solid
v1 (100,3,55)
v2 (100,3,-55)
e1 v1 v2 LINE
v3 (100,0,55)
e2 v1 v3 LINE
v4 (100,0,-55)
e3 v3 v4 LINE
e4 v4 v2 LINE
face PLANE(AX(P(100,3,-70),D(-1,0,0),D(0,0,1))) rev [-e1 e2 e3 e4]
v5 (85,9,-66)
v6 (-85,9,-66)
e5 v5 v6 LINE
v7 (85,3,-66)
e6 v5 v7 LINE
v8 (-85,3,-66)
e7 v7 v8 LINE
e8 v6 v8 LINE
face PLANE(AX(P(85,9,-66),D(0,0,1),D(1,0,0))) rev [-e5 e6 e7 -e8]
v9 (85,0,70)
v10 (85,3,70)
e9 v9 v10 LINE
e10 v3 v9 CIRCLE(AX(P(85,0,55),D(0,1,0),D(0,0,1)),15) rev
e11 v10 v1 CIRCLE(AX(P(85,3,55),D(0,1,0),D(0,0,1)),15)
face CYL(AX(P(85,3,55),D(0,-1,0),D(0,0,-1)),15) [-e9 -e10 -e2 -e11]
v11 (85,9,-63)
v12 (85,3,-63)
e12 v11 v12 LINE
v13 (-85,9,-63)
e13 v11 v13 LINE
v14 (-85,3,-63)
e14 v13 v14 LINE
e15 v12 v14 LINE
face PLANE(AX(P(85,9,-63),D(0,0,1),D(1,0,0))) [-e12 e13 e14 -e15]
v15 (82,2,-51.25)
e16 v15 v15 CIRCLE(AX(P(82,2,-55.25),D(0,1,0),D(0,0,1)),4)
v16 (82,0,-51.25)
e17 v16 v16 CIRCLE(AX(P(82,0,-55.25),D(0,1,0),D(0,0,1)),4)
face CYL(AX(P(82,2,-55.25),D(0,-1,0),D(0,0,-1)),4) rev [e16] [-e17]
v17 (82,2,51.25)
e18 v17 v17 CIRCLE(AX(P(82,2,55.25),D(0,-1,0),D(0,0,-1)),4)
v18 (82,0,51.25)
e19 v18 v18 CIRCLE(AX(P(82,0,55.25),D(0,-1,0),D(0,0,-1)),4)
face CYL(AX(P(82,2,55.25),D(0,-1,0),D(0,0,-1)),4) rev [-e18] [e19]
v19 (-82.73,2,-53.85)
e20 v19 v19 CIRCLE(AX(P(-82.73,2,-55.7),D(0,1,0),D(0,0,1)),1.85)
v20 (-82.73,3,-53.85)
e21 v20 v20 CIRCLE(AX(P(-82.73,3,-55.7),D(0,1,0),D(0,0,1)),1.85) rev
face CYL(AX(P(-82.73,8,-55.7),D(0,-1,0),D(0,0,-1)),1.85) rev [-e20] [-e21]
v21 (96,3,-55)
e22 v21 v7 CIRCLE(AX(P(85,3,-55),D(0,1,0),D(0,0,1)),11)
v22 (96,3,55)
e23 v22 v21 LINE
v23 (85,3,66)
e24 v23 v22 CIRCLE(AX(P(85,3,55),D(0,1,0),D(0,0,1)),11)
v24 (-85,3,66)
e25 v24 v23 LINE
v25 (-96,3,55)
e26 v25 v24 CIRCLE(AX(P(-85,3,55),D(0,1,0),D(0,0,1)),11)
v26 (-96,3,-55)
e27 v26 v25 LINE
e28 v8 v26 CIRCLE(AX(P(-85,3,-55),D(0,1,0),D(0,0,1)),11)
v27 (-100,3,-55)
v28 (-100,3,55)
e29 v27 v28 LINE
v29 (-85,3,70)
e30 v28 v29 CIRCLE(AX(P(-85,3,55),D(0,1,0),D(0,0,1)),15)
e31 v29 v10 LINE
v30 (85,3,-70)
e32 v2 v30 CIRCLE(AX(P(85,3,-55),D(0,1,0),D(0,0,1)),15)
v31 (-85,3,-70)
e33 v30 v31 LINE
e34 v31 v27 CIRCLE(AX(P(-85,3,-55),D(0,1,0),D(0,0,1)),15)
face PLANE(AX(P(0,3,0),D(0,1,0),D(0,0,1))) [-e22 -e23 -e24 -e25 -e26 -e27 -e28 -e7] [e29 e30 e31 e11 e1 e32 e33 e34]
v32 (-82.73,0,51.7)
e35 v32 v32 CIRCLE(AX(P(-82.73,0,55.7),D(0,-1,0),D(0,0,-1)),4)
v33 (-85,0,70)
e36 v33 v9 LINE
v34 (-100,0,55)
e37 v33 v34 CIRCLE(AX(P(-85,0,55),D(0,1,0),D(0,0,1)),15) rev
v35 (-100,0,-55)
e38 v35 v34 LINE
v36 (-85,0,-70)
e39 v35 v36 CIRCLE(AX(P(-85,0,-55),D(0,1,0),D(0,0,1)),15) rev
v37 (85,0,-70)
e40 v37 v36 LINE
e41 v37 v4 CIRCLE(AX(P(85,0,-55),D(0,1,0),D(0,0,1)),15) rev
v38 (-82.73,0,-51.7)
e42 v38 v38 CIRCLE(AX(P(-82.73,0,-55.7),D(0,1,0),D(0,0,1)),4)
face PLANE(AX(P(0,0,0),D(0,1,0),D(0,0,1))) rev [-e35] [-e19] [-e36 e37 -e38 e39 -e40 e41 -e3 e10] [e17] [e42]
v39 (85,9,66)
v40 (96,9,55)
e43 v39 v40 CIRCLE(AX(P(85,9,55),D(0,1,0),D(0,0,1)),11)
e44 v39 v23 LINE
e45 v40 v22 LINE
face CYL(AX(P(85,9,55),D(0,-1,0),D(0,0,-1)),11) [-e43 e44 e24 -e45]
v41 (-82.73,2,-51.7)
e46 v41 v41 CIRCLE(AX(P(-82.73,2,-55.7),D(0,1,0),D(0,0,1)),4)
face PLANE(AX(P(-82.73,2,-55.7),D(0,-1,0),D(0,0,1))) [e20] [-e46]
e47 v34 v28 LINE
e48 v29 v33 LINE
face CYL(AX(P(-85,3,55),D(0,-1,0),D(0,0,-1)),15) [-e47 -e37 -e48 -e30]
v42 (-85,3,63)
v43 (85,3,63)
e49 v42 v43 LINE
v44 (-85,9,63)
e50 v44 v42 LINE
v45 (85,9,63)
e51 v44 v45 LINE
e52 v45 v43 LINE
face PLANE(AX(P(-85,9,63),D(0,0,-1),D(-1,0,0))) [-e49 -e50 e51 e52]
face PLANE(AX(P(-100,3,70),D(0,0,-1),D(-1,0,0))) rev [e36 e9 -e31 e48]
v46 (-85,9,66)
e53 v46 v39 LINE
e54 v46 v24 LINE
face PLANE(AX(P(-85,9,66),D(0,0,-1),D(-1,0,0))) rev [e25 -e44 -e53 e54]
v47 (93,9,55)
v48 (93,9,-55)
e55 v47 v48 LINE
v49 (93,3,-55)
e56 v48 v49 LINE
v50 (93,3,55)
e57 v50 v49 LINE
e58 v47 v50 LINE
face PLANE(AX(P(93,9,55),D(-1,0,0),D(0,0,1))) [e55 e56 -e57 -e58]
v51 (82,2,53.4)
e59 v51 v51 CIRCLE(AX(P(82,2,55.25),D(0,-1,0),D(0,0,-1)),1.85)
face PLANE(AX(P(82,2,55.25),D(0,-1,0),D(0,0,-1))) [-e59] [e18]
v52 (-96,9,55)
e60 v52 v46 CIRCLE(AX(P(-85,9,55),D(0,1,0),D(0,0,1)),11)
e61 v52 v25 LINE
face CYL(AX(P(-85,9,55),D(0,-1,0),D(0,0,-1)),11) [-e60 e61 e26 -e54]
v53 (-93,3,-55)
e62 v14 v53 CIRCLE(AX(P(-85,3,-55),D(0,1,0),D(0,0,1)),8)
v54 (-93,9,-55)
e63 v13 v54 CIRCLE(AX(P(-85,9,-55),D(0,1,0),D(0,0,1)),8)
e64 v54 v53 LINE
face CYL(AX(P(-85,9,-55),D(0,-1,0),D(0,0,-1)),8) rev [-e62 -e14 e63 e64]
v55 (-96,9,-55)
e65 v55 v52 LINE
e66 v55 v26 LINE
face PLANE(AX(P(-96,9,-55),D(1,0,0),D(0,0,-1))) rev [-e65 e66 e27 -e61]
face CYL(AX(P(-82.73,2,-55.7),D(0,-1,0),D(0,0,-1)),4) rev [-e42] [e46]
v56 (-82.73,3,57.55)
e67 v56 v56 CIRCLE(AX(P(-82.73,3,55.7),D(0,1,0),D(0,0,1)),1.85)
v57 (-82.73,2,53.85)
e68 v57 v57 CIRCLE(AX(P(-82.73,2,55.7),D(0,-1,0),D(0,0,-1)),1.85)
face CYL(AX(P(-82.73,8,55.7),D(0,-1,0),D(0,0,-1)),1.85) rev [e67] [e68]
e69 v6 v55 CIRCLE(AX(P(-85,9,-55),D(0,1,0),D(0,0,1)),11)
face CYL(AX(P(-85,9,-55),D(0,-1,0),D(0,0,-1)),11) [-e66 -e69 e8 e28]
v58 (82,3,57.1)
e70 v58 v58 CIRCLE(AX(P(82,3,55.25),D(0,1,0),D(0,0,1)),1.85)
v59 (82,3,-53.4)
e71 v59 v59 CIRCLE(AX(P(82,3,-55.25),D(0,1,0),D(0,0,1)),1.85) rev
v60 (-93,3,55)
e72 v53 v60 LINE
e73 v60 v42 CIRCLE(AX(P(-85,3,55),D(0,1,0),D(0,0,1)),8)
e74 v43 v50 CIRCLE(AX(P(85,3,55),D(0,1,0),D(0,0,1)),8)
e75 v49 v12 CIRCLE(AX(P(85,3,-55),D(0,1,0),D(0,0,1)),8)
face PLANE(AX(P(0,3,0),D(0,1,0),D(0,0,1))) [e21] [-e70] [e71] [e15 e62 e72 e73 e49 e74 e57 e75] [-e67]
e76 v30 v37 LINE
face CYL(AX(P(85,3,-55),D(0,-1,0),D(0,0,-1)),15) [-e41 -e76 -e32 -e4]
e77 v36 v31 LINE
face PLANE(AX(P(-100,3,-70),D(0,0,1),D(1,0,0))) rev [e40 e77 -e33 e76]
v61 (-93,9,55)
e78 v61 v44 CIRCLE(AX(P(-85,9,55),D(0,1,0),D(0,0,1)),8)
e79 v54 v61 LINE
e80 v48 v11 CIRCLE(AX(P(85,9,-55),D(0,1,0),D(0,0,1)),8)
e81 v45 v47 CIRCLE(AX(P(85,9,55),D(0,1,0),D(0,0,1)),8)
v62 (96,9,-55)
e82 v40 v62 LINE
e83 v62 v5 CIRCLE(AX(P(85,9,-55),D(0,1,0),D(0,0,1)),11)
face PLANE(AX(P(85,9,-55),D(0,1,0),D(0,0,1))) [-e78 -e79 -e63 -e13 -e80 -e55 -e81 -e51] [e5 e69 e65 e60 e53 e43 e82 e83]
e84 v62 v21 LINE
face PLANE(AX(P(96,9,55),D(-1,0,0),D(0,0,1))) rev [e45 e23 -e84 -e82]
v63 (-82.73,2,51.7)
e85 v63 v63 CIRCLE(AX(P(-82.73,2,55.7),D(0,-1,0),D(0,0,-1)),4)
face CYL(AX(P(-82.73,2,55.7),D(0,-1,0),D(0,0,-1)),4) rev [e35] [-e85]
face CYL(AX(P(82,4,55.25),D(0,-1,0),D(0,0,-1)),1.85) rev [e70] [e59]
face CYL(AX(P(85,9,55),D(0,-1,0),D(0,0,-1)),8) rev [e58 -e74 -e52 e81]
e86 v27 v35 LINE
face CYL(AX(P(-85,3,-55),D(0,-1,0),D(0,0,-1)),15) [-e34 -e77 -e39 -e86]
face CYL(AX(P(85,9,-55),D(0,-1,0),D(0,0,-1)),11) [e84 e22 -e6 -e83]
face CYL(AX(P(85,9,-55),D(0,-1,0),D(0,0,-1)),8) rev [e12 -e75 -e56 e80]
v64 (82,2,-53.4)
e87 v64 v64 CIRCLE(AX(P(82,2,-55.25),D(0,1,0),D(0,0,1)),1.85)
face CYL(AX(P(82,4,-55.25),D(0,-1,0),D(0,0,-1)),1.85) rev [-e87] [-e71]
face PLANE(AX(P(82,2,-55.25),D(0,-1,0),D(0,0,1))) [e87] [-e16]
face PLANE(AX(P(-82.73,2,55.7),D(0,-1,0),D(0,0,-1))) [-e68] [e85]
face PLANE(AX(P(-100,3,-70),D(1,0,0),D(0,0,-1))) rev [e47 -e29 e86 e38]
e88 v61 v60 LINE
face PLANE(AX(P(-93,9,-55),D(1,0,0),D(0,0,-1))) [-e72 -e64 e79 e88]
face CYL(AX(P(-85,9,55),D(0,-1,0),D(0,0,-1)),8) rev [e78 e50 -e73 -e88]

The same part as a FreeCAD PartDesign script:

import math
import FreeCAD as App
import Part
import Sketcher

V = App.Vector
Q = App.Units.Quantity


def edges_at(feature, points):
    """Names of the edges that pass closest to the given points."""
    edges = feature.Shape.Edges
    near = lambda p: min(range(len(edges)), key=lambda i: edges[i].distToShape(Part.Vertex(*p))[0])
    return sorted({f"Edge{near(p) + 1}" for p in points})


def add_polygon(sketch, points):
    """Adds a closed chain of lines whose ends are joined by coincident constraints."""
    first, n = sketch.GeometryCount, len(points)
    for a, b in zip(points, points[1:] + points[:1]):
        sketch.addGeometry(Part.LineSegment(App.Vector(*a, 0), App.Vector(*b, 0)), False)
    for i in range(n):
        sketch.addConstraint(Sketcher.Constraint("Coincident", first + i, 2, first + (i + 1) % n, 1))

doc = App.newDocument("Part")
body = doc.addObject("PartDesign::Body", "Body")

# Sketch on XZ plane
sketch1 = body.newObject("Sketcher::SketchObject", "Sketch")
sketch1.AttachmentSupport = (doc.getObject("XZ_Plane"), [""])
sketch1.MapMode = "FlatFace"
add_polygon(sketch1, [(-100, -70), (-100, 70), (100, 70), (100, -70)])  # lines 0-3
sketch1.addConstraint([
    Sketcher.Constraint("Vertical", 0),
    Sketcher.Constraint("Horizontal", 1),
    Sketcher.Constraint("Vertical", 2),
    Sketcher.Constraint("Horizontal", 3),
    Sketcher.Constraint("Symmetric", 0, 2, 2, 2, -1, 1),
    Sketcher.Constraint("DistanceX", 1, 1, 1, 2, Q("200 mm")),
    Sketcher.Constraint("DistanceY", 0, 1, 0, 2, Q("140 mm")),
])
pad1 = body.newObject("PartDesign::Pad", "Pad")
pad1.Profile = sketch1
pad1.Length = 3
pad1.Reversed = True
doc.recompute()

fillet = body.newObject("PartDesign::Fillet", "Fillet")
fillet.Base = (pad1, edges_at(pad1, [
    (100, 1.5, 70),
    (-100, 1.5, 70),
    (-100, 1.5, -70),
    (100, 1.5, -70),
]))
fillet.Radius = 15

# Sketch on XZ plane
sketch2 = body.newObject("Sketcher::SketchObject", "Sketch001")
sketch2.AttachmentSupport = (doc.getObject("XZ_Plane"), [""])
sketch2.MapMode = "FlatFace"
sketch2.AttachmentOffset = App.Placement(V(0, 0, -3), App.Rotation())
sketch2.addGeometry([
    Part.LineSegment(V(96, 55, 0), V(96, -55, 0)),  # 0
    Part.ArcOfCircle(Part.Circle(V(85, -55, 0), V(0, 0, 1), 11), math.radians(-90), math.radians(0)),  # 1
    Part.LineSegment(V(85, -66, 0), V(-85, -66, 0)),  # 2
    Part.ArcOfCircle(Part.Circle(V(-85, -55, 0), V(0, 0, 1), 11), math.radians(180), math.radians(270)),  # 3
    Part.LineSegment(V(-96, -55, 0), V(-96, 55, 0)),  # 4
    Part.ArcOfCircle(Part.Circle(V(-85, 55, 0), V(0, 0, 1), 11), math.radians(90), math.radians(180)),  # 5
    Part.LineSegment(V(-85, 66, 0), V(85, 66, 0)),  # 6
    Part.ArcOfCircle(Part.Circle(V(85, 55, 0), V(0, 0, 1), 11), math.radians(0), math.radians(90)),  # 7
    Part.LineSegment(V(-85, -63, 0), V(85, -63, 0)),  # 8
    Part.ArcOfCircle(Part.Circle(V(85, -55, 0), V(0, 0, 1), 8), math.radians(-90), math.radians(0)),  # 9
    Part.LineSegment(V(93, -55, 0), V(93, 55, 0)),  # 10
    Part.ArcOfCircle(Part.Circle(V(85, 55, 0), V(0, 0, 1), 8), math.radians(0), math.radians(90)),  # 11
    Part.LineSegment(V(85, 63, 0), V(-85, 63, 0)),  # 12
    Part.ArcOfCircle(Part.Circle(V(-85, 55, 0), V(0, 0, 1), 8), math.radians(90), math.radians(180)),  # 13
    Part.LineSegment(V(-93, 55, 0), V(-93, -55, 0)),  # 14
    Part.ArcOfCircle(Part.Circle(V(-85, -55, 0), V(0, 0, 1), 8), math.radians(-180), math.radians(-90)),  # 15
], False)
sketch2.addConstraint([
    Sketcher.Constraint("Tangent", 0, 2, 1, 2),
    Sketcher.Constraint("Tangent", 1, 1, 2, 1),
    Sketcher.Constraint("Tangent", 2, 2, 3, 2),
    Sketcher.Constraint("Tangent", 3, 1, 4, 1),
    Sketcher.Constraint("Tangent", 4, 2, 5, 2),
    Sketcher.Constraint("Tangent", 5, 1, 6, 1),
    Sketcher.Constraint("Tangent", 6, 2, 7, 2),
    Sketcher.Constraint("Tangent", 7, 1, 0, 1),
    Sketcher.Constraint("Tangent", 8, 2, 9, 1),
    Sketcher.Constraint("Tangent", 9, 2, 10, 1),
    Sketcher.Constraint("Tangent", 10, 2, 11, 1),
    Sketcher.Constraint("Tangent", 11, 2, 12, 1),
    Sketcher.Constraint("Tangent", 12, 2, 13, 1),
    Sketcher.Constraint("Tangent", 13, 2, 14, 1),
    Sketcher.Constraint("Tangent", 14, 2, 15, 1),
    Sketcher.Constraint("Tangent", 15, 2, 8, 1),
    Sketcher.Constraint("Vertical", 0),
    Sketcher.Constraint("Horizontal", 2),
    Sketcher.Constraint("Vertical", 4),
    Sketcher.Constraint("Horizontal", 6),
    Sketcher.Constraint("Horizontal", 8),
    Sketcher.Constraint("Vertical", 10),
    Sketcher.Constraint("Horizontal", 12),
    Sketcher.Constraint("Vertical", 14),
    Sketcher.Constraint("Coincident", 9, 3, 1, 3),
    Sketcher.Constraint("Coincident", 11, 3, 7, 3),
    Sketcher.Constraint("Coincident", 13, 3, 5, 3),
    Sketcher.Constraint("Equal", 1, 3),
    Sketcher.Constraint("Equal", 3, 5),
    Sketcher.Constraint("Equal", 5, 7),
    Sketcher.Constraint("Equal", 13, 15),
    Sketcher.Constraint("Symmetric", 1, 3, 5, 3, -1, 1),
    Sketcher.Constraint("Radius", 1, Q("11 mm")),
    Sketcher.Constraint("Radius", 9, Q("8 mm")),
    Sketcher.Constraint("DistanceX", 2, 2, 2, 1, Q("170 mm")),
    Sketcher.Constraint("DistanceY", 0, 2, 0, 1, Q("110 mm")),
])
pad2 = body.newObject("PartDesign::Pad", "Pad001")
pad2.Profile = sketch2
pad2.Length = 6
pad2.Reversed = True

# Sketch on XZ plane
sketch3 = body.newObject("Sketcher::SketchObject", "Sketch002")
sketch3.AttachmentSupport = (doc.getObject("XZ_Plane"), [""])
sketch3.MapMode = "FlatFace"
sketch3.addGeometry(Part.Circle(V(-82.73, 55.7, 0), V(0, 0, 1), 4), False)
sketch3.addConstraint([
    Sketcher.Constraint("Diameter", 0, Q("8 mm")),
    Sketcher.Constraint("DistanceY", -1, 1, 0, 3, Q("55.7 mm")),
    Sketcher.Constraint("DistanceX", 0, 3, -1, 1, Q("82.73 mm")),
])
pocket1 = body.newObject("PartDesign::Pocket", "Pocket")
pocket1.Profile = sketch3
pocket1.Length = 2
doc.recompute()

mirrored = body.newObject("PartDesign::Mirrored", "Mirrored")
mirrored.Originals = [pocket1]
mirrored.MirrorPlane = (doc.getObject("XY_Plane"), [""])
body.Tip = mirrored

# Sketch on XZ plane
sketch4 = body.newObject("Sketcher::SketchObject", "Sketch003")
sketch4.AttachmentSupport = (doc.getObject("XZ_Plane"), [""])
sketch4.MapMode = "FlatFace"
sketch4.AttachmentOffset = App.Placement(V(0, 0, -2), App.Rotation())
sketch4.addGeometry(Part.Circle(V(-82.73, 55.7, 0), V(0, 0, 1), 1.85), False)
sketch4.addConstraint([
    Sketcher.Constraint("Diameter", 0, Q("3.7 mm")),
    Sketcher.Constraint("DistanceY", -1, 1, 0, 3, Q("55.7 mm")),
    Sketcher.Constraint("DistanceX", 0, 3, -1, 1, Q("82.73 mm")),
])
pocket2 = body.newObject("PartDesign::Pocket", "Pocket001")
pocket2.Profile = sketch4
pocket2.Length = 6
doc.recompute()

mirrored2 = body.newObject("PartDesign::Mirrored", "Mirrored001")
mirrored2.Originals = [pocket2]
mirrored2.MirrorPlane = (doc.getObject("XY_Plane"), [""])
body.Tip = mirrored2

# Sketch on XZ plane
sketch5 = body.newObject("Sketcher::SketchObject", "Sketch004")
sketch5.AttachmentSupport = (doc.getObject("XZ_Plane"), [""])
sketch5.MapMode = "FlatFace"
sketch5.addGeometry(Part.Circle(V(82, 55.25, 0), V(0, 0, 1), 4), False)
sketch5.addConstraint([
    Sketcher.Constraint("Diameter", 0, Q("8 mm")),
    Sketcher.Constraint("DistanceX", -1, 1, 0, 3, Q("82 mm")),
    Sketcher.Constraint("DistanceY", -1, 1, 0, 3, Q("55.25 mm")),
])
pocket3 = body.newObject("PartDesign::Pocket", "Pocket002")
pocket3.Profile = sketch5
pocket3.Length = 2
doc.recompute()

mirrored3 = body.newObject("PartDesign::Mirrored", "Mirrored002")
mirrored3.Originals = [pocket3]
mirrored3.MirrorPlane = (doc.getObject("XY_Plane"), [""])
body.Tip = mirrored3

# Sketch on XZ plane
sketch6 = body.newObject("Sketcher::SketchObject", "Sketch005")
sketch6.AttachmentSupport = (doc.getObject("XZ_Plane"), [""])
sketch6.MapMode = "FlatFace"
sketch6.AttachmentOffset = App.Placement(V(0, 0, -2), App.Rotation())
sketch6.addGeometry(Part.Circle(V(82, 55.25, 0), V(0, 0, 1), 1.85), False)
sketch6.addConstraint([
    Sketcher.Constraint("Diameter", 0, Q("3.7 mm")),
    Sketcher.Constraint("DistanceX", -1, 1, 0, 3, Q("82 mm")),
    Sketcher.Constraint("DistanceY", -1, 1, 0, 3, Q("55.25 mm")),
])
pocket4 = body.newObject("PartDesign::Pocket", "Pocket003")
pocket4.Profile = sketch6
pocket4.Length = 2
doc.recompute()

mirrored4 = body.newObject("PartDesign::Mirrored", "Mirrored003")
mirrored4.Originals = [pocket4]
mirrored4.MirrorPlane = (doc.getObject("XY_Plane"), [""])
body.Tip = mirrored4

doc.recompute()
